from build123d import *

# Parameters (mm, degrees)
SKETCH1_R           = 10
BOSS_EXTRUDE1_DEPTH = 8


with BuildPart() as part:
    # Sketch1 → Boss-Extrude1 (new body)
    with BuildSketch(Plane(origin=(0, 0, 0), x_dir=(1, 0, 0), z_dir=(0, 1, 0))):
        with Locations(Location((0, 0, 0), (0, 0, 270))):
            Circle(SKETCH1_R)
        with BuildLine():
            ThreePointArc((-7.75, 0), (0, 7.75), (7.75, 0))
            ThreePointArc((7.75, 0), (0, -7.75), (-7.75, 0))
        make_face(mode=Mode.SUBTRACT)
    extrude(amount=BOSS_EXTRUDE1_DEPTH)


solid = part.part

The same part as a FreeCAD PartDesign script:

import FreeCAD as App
import Part
import Sketcher

V = App.Vector
Q = App.Units.Quantity

doc = App.newDocument("Part")
params = doc.addObject("Spreadsheet::Sheet", "Params")
for row, (alias, value) in enumerate([
    ("sketch1_diameter", "20 mm"),
    ("sketch1_diameter2", "15.5 mm"),
    ("pad1_length", "8 mm"),
], start=1):
    params.set(f"A{row}", alias)
    params.set(f"B{row}", "=" + value)
    params.setAlias(f"B{row}", alias)

body = doc.addObject("PartDesign::Body", "Body")

# Sketch on XZ plane
sketch1 = body.newObject("Sketcher::SketchObject", "Sketch")
sketch1.AttachmentSupport = (doc.getObject("XZ_Plane"), [""])
sketch1.MapMode = "FlatFace"
sketch1.addGeometry([
    Part.Circle(V(0, 0, 0), V(0, 0, 1), 10),
    Part.Circle(V(0, 0, 0), V(0, 0, 1), 8),
], False)
sketch1.addConstraint([
    Sketcher.Constraint("Coincident", 0, 3, -1, 1),
    Sketcher.Constraint("Coincident", 1, 3, -1, 1),
    Sketcher.Constraint("Diameter", 0, Q("20 mm")),
    Sketcher.Constraint("Diameter", 1, Q("15.5 mm")),
])
sketch1.setExpression("Constraints[2]", "Params.sketch1_diameter")
sketch1.setExpression("Constraints[3]", "Params.sketch1_diameter2")
pad1 = body.newObject("PartDesign::Pad", "Pad")
pad1.Profile = sketch1
pad1.setExpression("Length", "Params.pad1_length")
pad1.Reversed = True

doc.recompute()
